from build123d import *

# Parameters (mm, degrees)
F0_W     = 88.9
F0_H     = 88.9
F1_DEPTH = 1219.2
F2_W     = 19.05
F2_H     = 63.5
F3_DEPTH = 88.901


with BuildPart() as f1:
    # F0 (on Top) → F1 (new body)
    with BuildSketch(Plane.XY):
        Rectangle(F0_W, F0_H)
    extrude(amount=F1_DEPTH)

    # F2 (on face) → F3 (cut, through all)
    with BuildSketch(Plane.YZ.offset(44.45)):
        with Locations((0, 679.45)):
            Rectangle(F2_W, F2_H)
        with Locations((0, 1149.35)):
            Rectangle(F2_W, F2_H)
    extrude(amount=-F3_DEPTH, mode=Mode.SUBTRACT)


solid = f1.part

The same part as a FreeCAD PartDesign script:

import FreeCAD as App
import Part
import Sketcher
Q = App.Units.Quantity

doc = App.newDocument("Part")
body = doc.addObject("PartDesign::Body", "Body")

# Sketch on XY plane
sketch1 = doc.addObject("Sketcher::SketchObject", "Sketch")
body.addObject(sketch1)
sketch1.AttachmentSupport = (doc.XY_Plane, [""])
sketch1.MapMode = "FlatFace"
sketch1.addGeometry([
    Part.LineSegment(App.Vector(-44, 44, 0), App.Vector(-44, -44, 0)),
    Part.LineSegment(App.Vector(-44, -44, 0), App.Vector(44, -44, 0)),
    Part.LineSegment(App.Vector(44, -44, 0), App.Vector(44, 44, 0)),
    Part.LineSegment(App.Vector(44, 44, 0), App.Vector(-44, 44, 0)),
], False)
sketch1.addConstraint([
    Sketcher.Constraint("Coincident", 0, 2, 1, 1),
    Sketcher.Constraint("Coincident", 1, 2, 2, 1),
    Sketcher.Constraint("Coincident", 2, 2, 3, 1),
    Sketcher.Constraint("Coincident", 3, 2, 0, 1),
    Sketcher.Constraint("Vertical", 0),
    Sketcher.Constraint("Horizontal", 1),
    Sketcher.Constraint("Vertical", 2),
    Sketcher.Constraint("Horizontal", 3),
    Sketcher.Constraint("Symmetric", 0, 2, 2, 2, -1, 1),
    Sketcher.Constraint("Equal", 3, 0),
    Sketcher.Constraint("DistanceX", 1, 1, 1, 2, Q("3.5 in")),
])
pad1 = doc.addObject("PartDesign::Pad", "Pad")
body.addObject(pad1)
pad1.Profile = sketch1
pad1.Length = Q("48 in")

# Sketch on YZ plane
sketch2 = doc.addObject("Sketcher::SketchObject", "Sketch001")
body.addObject(sketch2)
sketch2.AttachmentSupport = (doc.YZ_Plane, [""])
sketch2.MapMode = "FlatFace"
sketch2.AttachmentOffset = App.Placement(App.Vector(0, 0, 1.75 * 25.4), App.Rotation())
sketch2.addGeometry([
    Part.LineSegment(App.Vector(-10, 711, 0), App.Vector(-10, 648, 0)),  # 0
    Part.LineSegment(App.Vector(-10, 648, 0), App.Vector(10, 648, 0)),  # 1
    Part.LineSegment(App.Vector(10, 648, 0), App.Vector(10, 711, 0)),  # 2
    Part.LineSegment(App.Vector(10, 711, 0), App.Vector(-10, 711, 0)),  # 3
    Part.LineSegment(App.Vector(-10, 1181, 0), App.Vector(-10, 1118, 0)),  # 4
    Part.LineSegment(App.Vector(-10, 1118, 0), App.Vector(10, 1118, 0)),  # 5
    Part.LineSegment(App.Vector(10, 1118, 0), App.Vector(10, 1181, 0)),  # 6
    Part.LineSegment(App.Vector(10, 1181, 0), App.Vector(-10, 1181, 0)),  # 7
], False)
sketch2.addConstraint([
    Sketcher.Constraint("Coincident", 0, 2, 1, 1),
    Sketcher.Constraint("Coincident", 1, 2, 2, 1),
    Sketcher.Constraint("Coincident", 2, 2, 3, 1),
    Sketcher.Constraint("Coincident", 3, 2, 0, 1),
    Sketcher.Constraint("Coincident", 4, 2, 5, 1),
    Sketcher.Constraint("Coincident", 5, 2, 6, 1),
    Sketcher.Constraint("Coincident", 6, 2, 7, 1),
    Sketcher.Constraint("Coincident", 7, 2, 4, 1),
    Sketcher.Constraint("Vertical", 0),
    Sketcher.Constraint("Horizontal", 1),
    Sketcher.Constraint("Vertical", 2),
    Sketcher.Constraint("Horizontal", 3),
    Sketcher.Constraint("Vertical", 4),
    Sketcher.Constraint("Horizontal", 5),
    Sketcher.Constraint("Vertical", 6),
    Sketcher.Constraint("Horizontal", 7),
    Sketcher.Constraint("Vertical", 3, 2, 4, 2),
    Sketcher.Constraint("Vertical", 2, 2, 5, 2),
    Sketcher.Constraint("Equal", 2, 4),
    Sketcher.Constraint("DistanceY", 0, 2, 0, 1, Q("2.5 in")),
    Sketcher.Constraint("DistanceY", -1, 1, 2, 2, Q("28 in")),
    Sketcher.Constraint("DistanceY", -1, 1, 4, 2, Q("44 in")),
    Sketcher.Constraint("DistanceX", 1, 1, 1, 2, Q("0.75 in")),
    Sketcher.Constraint("DistanceX", 0, 2, -1, 1, Q("0.375 in")),
])
pocket1 = doc.addObject("PartDesign::Pocket", "Pocket")
body.addObject(pocket1)
pocket1.Profile = sketch2
pocket1.Type = "ThroughAll"

doc.recompute()
